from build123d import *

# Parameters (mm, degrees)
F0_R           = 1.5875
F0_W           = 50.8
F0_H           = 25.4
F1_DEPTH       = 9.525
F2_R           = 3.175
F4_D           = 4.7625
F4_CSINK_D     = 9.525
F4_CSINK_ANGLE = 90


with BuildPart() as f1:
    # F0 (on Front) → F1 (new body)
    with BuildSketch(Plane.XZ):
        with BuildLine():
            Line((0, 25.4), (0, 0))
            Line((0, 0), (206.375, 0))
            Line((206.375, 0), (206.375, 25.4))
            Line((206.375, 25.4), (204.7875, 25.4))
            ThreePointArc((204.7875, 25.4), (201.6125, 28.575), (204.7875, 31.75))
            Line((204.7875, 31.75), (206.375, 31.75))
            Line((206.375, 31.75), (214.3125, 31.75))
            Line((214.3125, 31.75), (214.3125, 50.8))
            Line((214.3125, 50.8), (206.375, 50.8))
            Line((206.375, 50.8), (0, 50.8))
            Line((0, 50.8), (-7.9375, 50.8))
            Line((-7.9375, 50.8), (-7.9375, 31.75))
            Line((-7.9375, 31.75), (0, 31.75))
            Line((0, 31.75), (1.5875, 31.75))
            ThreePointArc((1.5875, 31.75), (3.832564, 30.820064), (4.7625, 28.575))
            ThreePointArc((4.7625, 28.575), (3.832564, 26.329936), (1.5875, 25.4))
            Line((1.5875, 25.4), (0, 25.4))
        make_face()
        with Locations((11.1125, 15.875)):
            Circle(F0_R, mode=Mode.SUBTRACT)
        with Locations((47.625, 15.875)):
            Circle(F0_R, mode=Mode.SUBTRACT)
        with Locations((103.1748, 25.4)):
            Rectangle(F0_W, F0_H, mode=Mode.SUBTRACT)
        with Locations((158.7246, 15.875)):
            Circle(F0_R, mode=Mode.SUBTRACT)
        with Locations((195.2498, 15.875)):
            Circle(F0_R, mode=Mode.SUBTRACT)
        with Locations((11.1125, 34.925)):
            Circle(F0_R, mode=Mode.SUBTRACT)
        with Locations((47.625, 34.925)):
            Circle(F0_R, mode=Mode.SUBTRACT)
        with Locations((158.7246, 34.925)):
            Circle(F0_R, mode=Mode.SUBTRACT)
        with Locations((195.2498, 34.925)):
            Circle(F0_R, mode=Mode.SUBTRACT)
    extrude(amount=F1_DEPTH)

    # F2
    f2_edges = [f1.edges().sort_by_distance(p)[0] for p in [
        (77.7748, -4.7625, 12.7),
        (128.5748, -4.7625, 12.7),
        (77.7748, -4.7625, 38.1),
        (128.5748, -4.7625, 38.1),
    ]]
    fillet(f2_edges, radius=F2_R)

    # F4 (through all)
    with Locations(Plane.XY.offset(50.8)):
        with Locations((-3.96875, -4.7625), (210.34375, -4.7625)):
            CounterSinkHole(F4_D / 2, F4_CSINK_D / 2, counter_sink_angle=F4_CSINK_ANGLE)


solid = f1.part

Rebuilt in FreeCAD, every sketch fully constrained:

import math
import FreeCAD as App
import Part
import Sketcher

V = App.Vector
Q = App.Units.Quantity


def edges_at(feature, points):
    """Names of the edges that pass closest to the given points."""
    edges = feature.Shape.Edges
    near = lambda p: min(range(len(edges)), key=lambda i: edges[i].distToShape(Part.Vertex(*p))[0])
    return sorted({f"Edge{near(p) + 1}" for p in points})

doc = App.newDocument("Part")
body = doc.addObject("PartDesign::Body", "Body")

# Sketch on XZ plane
sketch1 = body.newObject("Sketcher::SketchObject", "Sketch")
sketch1.AttachmentSupport = (doc.getObject("XZ_Plane"), [""])
sketch1.MapMode = "FlatFace"
sketch1.addGeometry([
    Part.LineSegment(V(0, 25.4, 0), V(0, 0, 0)),  # 0
    Part.LineSegment(V(0, 0, 0), V(206.375, 0, 0)),  # 1
    Part.LineSegment(V(206.375, 0, 0), V(206.375, 25.4, 0)),  # 2
    Part.LineSegment(V(206.375, 25.4, 0), V(204.7875, 25.4, 0)),  # 3
    Part.ArcOfCircle(Part.Circle(V(204.7875, 28.575, 0), V(0, 0, 1), 3.175), math.radians(90), math.radians(270)),  # 4
    Part.LineSegment(V(204.7875, 31.75, 0), V(214.3125, 31.75, 0)),  # 5
    Part.LineSegment(V(214.3125, 31.75, 0), V(214.3125, 50.8, 0)),  # 6
    Part.LineSegment(V(214.3125, 50.8, 0), V(-7.9375, 50.8, 0)),  # 7
    Part.LineSegment(V(-7.9375, 50.8, 0), V(-7.9375, 31.75, 0)),  # 8
    Part.LineSegment(V(-7.9375, 31.75, 0), V(1.5875, 31.75, 0)),  # 9
    Part.ArcOfCircle(Part.Circle(V(1.5875, 28.575, 0), V(0, 0, 1), 3.175), math.radians(0.000002), math.radians(89.999998)),  # 10
    Part.ArcOfCircle(Part.Circle(V(1.5875, 28.575, 0), V(0, 0, 1), 3.175), math.radians(-89.999998), math.radians(-0.000002)),  # 11
    Part.LineSegment(V(1.5875, 25.4, 0), V(0, 25.4, 0)),  # 12
    Part.Circle(V(11.1125, 15.875, 0), V(0, 0, 1), 1.5875),  # 13
    Part.Circle(V(47.625, 15.875, 0), V(0, 0, 1), 1.5875),  # 14
    Part.LineSegment(V(128.5748, 12.7, 0), V(77.7748, 12.7, 0)),  # 15
    Part.LineSegment(V(77.7748, 12.7, 0), V(77.7748, 38.1, 0)),  # 16
    Part.LineSegment(V(77.7748, 38.1, 0), V(128.5748, 38.1, 0)),  # 17
    Part.LineSegment(V(128.5748, 38.1, 0), V(128.5748, 12.7, 0)),  # 18
    Part.Circle(V(158.7246, 15.875, 0), V(0, 0, 1), 1.5875),  # 19
    Part.Circle(V(195.2498, 15.875, 0), V(0, 0, 1), 1.5875),  # 20
    Part.Circle(V(11.1125, 34.925, 0), V(0, 0, 1), 1.5875),  # 21
    Part.Circle(V(47.625, 34.925, 0), V(0, 0, 1), 1.5875),  # 22
    Part.Circle(V(158.7246, 34.925, 0), V(0, 0, 1), 1.5875),  # 23
    Part.Circle(V(195.2498, 34.925, 0), V(0, 0, 1), 1.5875),  # 24
], False)
sketch1.addConstraint([
    Sketcher.Constraint("Coincident", 0, 2, 1, 1),
    Sketcher.Constraint("Coincident", 1, 2, 2, 1),
    Sketcher.Constraint("Coincident", 2, 2, 3, 1),
    Sketcher.Constraint("Tangent", 3, 2, 4, 2),
    Sketcher.Constraint("Tangent", 4, 1, 5, 1),
    Sketcher.Constraint("Coincident", 5, 2, 6, 1),
    Sketcher.Constraint("Coincident", 6, 2, 7, 1),
    Sketcher.Constraint("Coincident", 7, 2, 8, 1),
    Sketcher.Constraint("Coincident", 8, 2, 9, 1),
    Sketcher.Constraint("Tangent", 9, 2, 10, 2),
    Sketcher.Constraint("Tangent", 10, 1, 11, 2),
    Sketcher.Constraint("Tangent", 11, 1, 12, 1),
    Sketcher.Constraint("Coincident", 12, 2, 0, 1),
    Sketcher.Constraint("Coincident", 15, 2, 16, 1),
    Sketcher.Constraint("Coincident", 16, 2, 17, 1),
    Sketcher.Constraint("Coincident", 17, 2, 18, 1),
    Sketcher.Constraint("Coincident", 18, 2, 15, 1),
    Sketcher.Constraint("Vertical", 0),
    Sketcher.Constraint("Horizontal", 1),
    Sketcher.Constraint("Vertical", 2),
    Sketcher.Constraint("Horizontal", 3),
    Sketcher.Constraint("Horizontal", 5),
    Sketcher.Constraint("Vertical", 6),
    Sketcher.Constraint("Horizontal", 7),
    Sketcher.Constraint("Vertical", 8),
    Sketcher.Constraint("Horizontal", 9),
    Sketcher.Constraint("Horizontal", 12),
    Sketcher.Constraint("Horizontal", 15),
    Sketcher.Constraint("Vertical", 16),
    Sketcher.Constraint("Horizontal", 17),
    Sketcher.Constraint("Vertical", 18),
    Sketcher.Constraint("Coincident", 0, 2, -1, 1),
    Sketcher.Constraint("Equal", 4, 10),
    Sketcher.Constraint("Equal", 10, 11),
    Sketcher.Constraint("Equal", 13, 14),
    Sketcher.Constraint("Equal", 14, 19),
    Sketcher.Constraint("Equal", 19, 20),
    Sketcher.Constraint("Equal", 20, 21),
    Sketcher.Constraint("Equal", 21, 22),
    Sketcher.Constraint("Equal", 22, 23),
    Sketcher.Constraint("Equal", 23, 24),
    Sketcher.Constraint("Horizontal", 4, 3, 10, 3),
    Sketcher.Constraint("Horizontal", 13, 3, 14, 3),
    Sketcher.Constraint("Horizontal", 14, 3, 19, 3),
    Sketcher.Constraint("Horizontal", 19, 3, 20, 3),
    Sketcher.Constraint("Horizontal", 21, 3, 22, 3),
    Sketcher.Constraint("Horizontal", 22, 3, 23, 3),
    Sketcher.Constraint("Horizontal", 23, 3, 24, 3),
    Sketcher.Constraint("Horizontal", 11, 3, 10, 1),
    Sketcher.Constraint("Vertical", 13, 3, 21, 3),
    Sketcher.Constraint("Vertical", 14, 3, 22, 3),
    Sketcher.Constraint("Vertical", 19, 3, 23, 3),
    Sketcher.Constraint("Vertical", 20, 3, 24, 3),
    Sketcher.Constraint("Equal", 5, 9),
    Sketcher.Constraint("Equal", 3, 12),
    Sketcher.Constraint("Equal", 2, 16),
    Sketcher.Constraint("DistanceX", 15, 2, 15, 1, Q("2 in")),
    Sketcher.Constraint("DistanceY", 0, 2, 0, 1, Q("1 in")),
    Sketcher.Constraint("Diameter", 13, Q("0.125 in")),
    Sketcher.Constraint("DistanceY", -1, 1, 6, 2, Q("2 in")),
    Sketcher.Constraint("Radius", 4, Q("0.125 in")),
    Sketcher.Constraint("DistanceX", 10, 3, 4, 3, Q("8 in")),
    Sketcher.Constraint("DistanceX", 7, 2, 7, 1, Q("8.75 in")),
    Sketcher.Constraint("DistanceY", -1, 1, 15, 2, Q("0.5 in")),
    Sketcher.Constraint("DistanceY", 13, 3, 10, 3, Q("0.5 in")),
    Sketcher.Constraint("DistanceX", 1, 1, 1, 2, Q("8.125 in")),
    Sketcher.Constraint("DistanceY", 11, 3, 21, 3, Q("0.25 in")),
    Sketcher.Constraint("DistanceX", 7, 2, 21, 3, Q("0.75 in")),
    Sketcher.Constraint("DistanceX", -1, 1, 14, 3, Q("1.875 in")),
    Sketcher.Constraint("DistanceX", -1, 1, 19, 3, Q("6.249 in")),
    Sketcher.Constraint("DistanceX", -1, 1, 20, 3, Q("7.687 in")),
    Sketcher.Constraint("DistanceX", -1, 1, 15, 2, Q("3.062 in")),
])
pad1 = body.newObject("PartDesign::Pad", "Pad")
pad1.Profile = sketch1
pad1.Length = Q("0.375 in")
doc.recompute()

fillet = body.newObject("PartDesign::Fillet", "Fillet")
fillet.Base = (pad1, edges_at(pad1, [
    (77.775, -4.763, 12.7),
    (128.575, -4.763, 12.7),
    (77.775, -4.763, 38.1),
    (128.575, -4.763, 38.1),
]))
fillet.Radius = Q("0.125 in")

# Sketch on XY plane
sketch2 = body.newObject("Sketcher::SketchObject", "Sketch001")
sketch2.AttachmentSupport = (doc.getObject("XY_Plane"), [""])
sketch2.MapMode = "FlatFace"
sketch2.AttachmentOffset = App.Placement(V(0, 0, 2 * 25.4), App.Rotation())
sketch2.addGeometry([
    Part.Circle(V(-3.96875, -4.7625, 0), V(0, 0, 1), 2.38125),
    Part.Circle(V(210.34375, -4.7625, 0), V(0, 0, 1), 2.38125),
], False)
sketch2.addConstraint([
    Sketcher.Constraint("Equal", 0, 1),
    Sketcher.Constraint("Horizontal", 0, 3, 1, 3),
    Sketcher.Constraint("Diameter", 0, Q("0.1875 in")),
    Sketcher.Constraint("DistanceX", 0, 3, -1, 1, Q("0.15625 in")),
    Sketcher.Constraint("DistanceY", 0, 3, -1, 1, Q("0.1875 in")),
    Sketcher.Constraint("DistanceX", -1, 1, 1, 3, Q("8.28125 in")),
])
doc.recompute()
hole = body.newObject("PartDesign::Hole", "Hole")
hole.Profile = sketch2
hole.ThreadType = "None"
hole.Diameter = Q("0.1875 in")
hole.DepthType = "ThroughAll"
hole.HoleCutType = "Countersink"
hole.HoleCutDiameter = Q("0.375 in")
hole.HoleCutCountersinkAngle = 90

doc.recompute()
